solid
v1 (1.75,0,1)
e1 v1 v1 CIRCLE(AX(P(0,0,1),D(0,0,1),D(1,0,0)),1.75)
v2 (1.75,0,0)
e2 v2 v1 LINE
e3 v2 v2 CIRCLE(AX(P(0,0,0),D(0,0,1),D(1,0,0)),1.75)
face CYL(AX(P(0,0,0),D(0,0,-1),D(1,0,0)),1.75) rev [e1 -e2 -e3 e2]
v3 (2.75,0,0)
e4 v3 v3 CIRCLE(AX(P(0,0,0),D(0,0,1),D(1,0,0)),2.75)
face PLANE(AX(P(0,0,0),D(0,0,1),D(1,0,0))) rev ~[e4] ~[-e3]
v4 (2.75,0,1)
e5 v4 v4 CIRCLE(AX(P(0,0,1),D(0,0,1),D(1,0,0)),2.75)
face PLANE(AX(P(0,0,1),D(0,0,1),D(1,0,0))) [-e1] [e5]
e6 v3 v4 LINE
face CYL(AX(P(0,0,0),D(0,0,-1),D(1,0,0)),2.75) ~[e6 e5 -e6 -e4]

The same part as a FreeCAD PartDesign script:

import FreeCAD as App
import Part
import Sketcher
Q = App.Units.Quantity

doc = App.newDocument("Part")
params = doc.addObject("Spreadsheet::Sheet", "Params")
for row, (alias, value) in enumerate([
    ("sketch1_diameter", "5.5 mm"),
    ("sketch1_diameter2", "3.5 mm"),
    ("pad1_length", "1 mm"),
], start=1):
    params.set(f"A{row}", alias)
    params.set(f"B{row}", "=" + value)
    params.setAlias(f"B{row}", alias)

body = doc.addObject("PartDesign::Body", "Body")

sketch1 = body.newObject("Sketcher::SketchObject", "Sketch")
sketch1.AttachmentSupport = (doc.getObject("XY_Plane"), [""])
sketch1.MapMode = "FlatFace"
sketch1.addGeometry([
    Part.Circle(App.Vector(0, 0, 0), App.Vector(0, 0, 1), 2.8),
    Part.Circle(App.Vector(0, 0, 0), App.Vector(0, 0, 1), 1.8),
], False)
sketch1.addConstraint([
    Sketcher.Constraint("Coincident", 0, 3, -1, 1),
    Sketcher.Constraint("Coincident", 1, 3, -1, 1),
    Sketcher.Constraint("Diameter", 0, Q("5.5 mm")),
    Sketcher.Constraint("Diameter", 1, Q("3.5 mm")),
])
sketch1.setExpression("Constraints[2]", "Params.sketch1_diameter")
sketch1.setExpression("Constraints[3]", "Params.sketch1_diameter2")
pad1 = body.newObject("PartDesign::Pad", "Pad")
pad1.Profile = sketch1
pad1.setExpression("Length", "Params.pad1_length")

doc.recompute()
